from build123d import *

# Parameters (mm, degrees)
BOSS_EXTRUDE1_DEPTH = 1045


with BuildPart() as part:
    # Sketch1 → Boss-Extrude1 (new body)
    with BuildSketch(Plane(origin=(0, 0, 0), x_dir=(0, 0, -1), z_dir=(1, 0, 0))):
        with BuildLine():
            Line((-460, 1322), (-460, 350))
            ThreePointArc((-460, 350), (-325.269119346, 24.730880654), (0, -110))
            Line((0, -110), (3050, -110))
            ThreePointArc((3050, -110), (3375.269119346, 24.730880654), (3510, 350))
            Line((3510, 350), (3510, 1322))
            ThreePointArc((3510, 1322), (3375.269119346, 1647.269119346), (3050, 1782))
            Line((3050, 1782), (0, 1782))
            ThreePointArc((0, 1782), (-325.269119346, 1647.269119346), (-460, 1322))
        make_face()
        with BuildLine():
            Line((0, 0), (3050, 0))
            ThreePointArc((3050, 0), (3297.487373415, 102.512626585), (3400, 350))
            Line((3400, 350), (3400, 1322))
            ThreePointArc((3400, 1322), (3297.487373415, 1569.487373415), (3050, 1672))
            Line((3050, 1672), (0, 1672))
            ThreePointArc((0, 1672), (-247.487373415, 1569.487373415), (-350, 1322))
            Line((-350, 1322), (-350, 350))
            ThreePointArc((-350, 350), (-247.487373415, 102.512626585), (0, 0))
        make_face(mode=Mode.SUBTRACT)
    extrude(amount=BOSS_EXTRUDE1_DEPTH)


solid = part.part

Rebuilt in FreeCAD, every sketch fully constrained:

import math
import FreeCAD as App
import Part
import Sketcher

V = App.Vector

doc = App.newDocument("Part")
params = doc.addObject("Spreadsheet::Sheet", "Params")
for row, (alias, value) in enumerate([
    ("sketch1_radius", "460 mm"),
    ("sketch1_radius2", "350 mm"),
    ("sketch1_width", "972 mm"),
    ("sketch1_height", "3050 mm"),
    ("pad1_length", "1045 mm"),
], start=1):
    params.set(f"A{row}", alias)
    params.set(f"B{row}", "=" + value)
    params.setAlias(f"B{row}", alias)

body = doc.addObject("PartDesign::Body", "Body")

sketch1 = body.newObject("Sketcher::SketchObject", "Sketch")
sketch1.AttachmentSupport = (doc.getObject("YZ_Plane"), [""])
sketch1.MapMode = "FlatFace"
sketch1.addGeometry(Part.LineSegment(V(1322, 460, 0), V(350, 460, 0)), False)
sketch1.addGeometry(Part.ArcOfCircle(Part.Circle(V(350, 0, 0), V(0, 0, 1), 460), math.radians(90), math.radians(180)), False)
sketch1.addGeometry(Part.LineSegment(V(-110, 0, 0), V(-110, -3050, 0)), False)
sketch1.addGeometry(Part.ArcOfCircle(Part.Circle(V(350, -3050, 0), V(0, 0, 1), 460), math.radians(180), math.radians(270)), False)
sketch1.addGeometry(Part.LineSegment(V(350, -3510, 0), V(1322, -3510, 0)), False)
sketch1.addGeometry(Part.ArcOfCircle(Part.Circle(V(1322, -3050, 0), V(0, 0, 1), 460), math.radians(-90), math.radians(0)), False)
sketch1.addGeometry(Part.LineSegment(V(1782, -3050, 0), V(1782, 0, 0)), False)
sketch1.addGeometry(Part.ArcOfCircle(Part.Circle(V(1322, 0, 0), V(0, 0, 1), 460), math.radians(0), math.radians(90)), False)
sketch1.addGeometry(Part.LineSegment(V(0, -3050, 0), V(0, 0, 0)), False)
sketch1.addGeometry(Part.ArcOfCircle(Part.Circle(V(350, 0, 0), V(0, 0, 1), 350), math.radians(90), math.radians(180)), False)
sketch1.addGeometry(Part.LineSegment(V(350, 350, 0), V(1322, 350, 0)), False)
sketch1.addGeometry(Part.ArcOfCircle(Part.Circle(V(1322, 0, 0), V(0, 0, 1), 350), math.radians(0), math.radians(90)), False)
sketch1.addGeometry(Part.LineSegment(V(1672, 0, 0), V(1672, -3050, 0)), False)
sketch1.addGeometry(Part.ArcOfCircle(Part.Circle(V(1322, -3050, 0), V(0, 0, 1), 350), math.radians(-90), math.radians(0)), False)
sketch1.addGeometry(Part.LineSegment(V(1322, -3400, 0), V(350, -3400, 0)), False)
sketch1.addGeometry(Part.ArcOfCircle(Part.Circle(V(350, -3050, 0), V(0, 0, 1), 350), math.radians(-180), math.radians(-90)), False)
sketch1.addConstraint(Sketcher.Constraint("Tangent", 0, 2, 1, 1))
sketch1.addConstraint(Sketcher.Constraint("Tangent", 1, 2, 2, 1))
sketch1.addConstraint(Sketcher.Constraint("Tangent", 2, 2, 3, 1))
sketch1.addConstraint(Sketcher.Constraint("Tangent", 3, 2, 4, 1))
sketch1.addConstraint(Sketcher.Constraint("Tangent", 4, 2, 5, 1))
sketch1.addConstraint(Sketcher.Constraint("Tangent", 5, 2, 6, 1))
sketch1.addConstraint(Sketcher.Constraint("Tangent", 6, 2, 7, 1))
sketch1.addConstraint(Sketcher.Constraint("Tangent", 7, 2, 0, 1))
sketch1.addConstraint(Sketcher.Constraint("Tangent", 8, 2, 9, 2))
sketch1.addConstraint(Sketcher.Constraint("Tangent", 9, 1, 10, 1))
sketch1.addConstraint(Sketcher.Constraint("Tangent", 10, 2, 11, 2))
sketch1.addConstraint(Sketcher.Constraint("Tangent", 11, 1, 12, 1))
sketch1.addConstraint(Sketcher.Constraint("Tangent", 12, 2, 13, 2))
sketch1.addConstraint(Sketcher.Constraint("Tangent", 13, 1, 14, 1))
sketch1.addConstraint(Sketcher.Constraint("Tangent", 14, 2, 15, 2))
sketch1.addConstraint(Sketcher.Constraint("Tangent", 15, 1, 8, 1))
sketch1.addConstraint(Sketcher.Constraint("Horizontal", 0))
sketch1.addConstraint(Sketcher.Constraint("Vertical", 2))
sketch1.addConstraint(Sketcher.Constraint("Horizontal", 4))
sketch1.addConstraint(Sketcher.Constraint("Vertical", 6))
sketch1.addConstraint(Sketcher.Constraint("Vertical", 8))
sketch1.addConstraint(Sketcher.Constraint("Horizontal", 10))
sketch1.addConstraint(Sketcher.Constraint("Vertical", 12))
sketch1.addConstraint(Sketcher.Constraint("Horizontal", 14))
sketch1.addConstraint(Sketcher.Constraint("Coincident", 8, 2, -1, 1))
sketch1.addConstraint(Sketcher.Constraint("Coincident", 9, 3, 1, 3))
sketch1.addConstraint(Sketcher.Constraint("Coincident", 11, 3, 7, 3))
sketch1.addConstraint(Sketcher.Constraint("Coincident", 13, 3, 5, 3))
sketch1.addConstraint(Sketcher.Constraint("Equal", 1, 3))
sketch1.addConstraint(Sketcher.Constraint("Equal", 3, 5))
sketch1.addConstraint(Sketcher.Constraint("Equal", 5, 7))
sketch1.addConstraint(Sketcher.Constraint("Equal", 13, 15))
sketch1.addConstraint(Sketcher.Constraint("Radius", 1, 460.0))
sketch1.addConstraint(Sketcher.Constraint("Radius", 9, 350.0))
sketch1.addConstraint(Sketcher.Constraint("DistanceX", 0, 2, 0, 1, 972.0))
sketch1.addConstraint(Sketcher.Constraint("DistanceY", 2, 2, 2, 1, 3050.0))
sketch1.setExpression("Constraints[32]", "Params.sketch1_radius")
sketch1.setExpression("Constraints[33]", "Params.sketch1_radius2")
sketch1.setExpression("Constraints[34]", "Params.sketch1_width")
sketch1.setExpression("Constraints[35]", "Params.sketch1_height")
pad1 = body.newObject("PartDesign::Pad", "Pad")
pad1.Profile = sketch1
pad1.setExpression("Length", "Params.pad1_length")

doc.recompute()
